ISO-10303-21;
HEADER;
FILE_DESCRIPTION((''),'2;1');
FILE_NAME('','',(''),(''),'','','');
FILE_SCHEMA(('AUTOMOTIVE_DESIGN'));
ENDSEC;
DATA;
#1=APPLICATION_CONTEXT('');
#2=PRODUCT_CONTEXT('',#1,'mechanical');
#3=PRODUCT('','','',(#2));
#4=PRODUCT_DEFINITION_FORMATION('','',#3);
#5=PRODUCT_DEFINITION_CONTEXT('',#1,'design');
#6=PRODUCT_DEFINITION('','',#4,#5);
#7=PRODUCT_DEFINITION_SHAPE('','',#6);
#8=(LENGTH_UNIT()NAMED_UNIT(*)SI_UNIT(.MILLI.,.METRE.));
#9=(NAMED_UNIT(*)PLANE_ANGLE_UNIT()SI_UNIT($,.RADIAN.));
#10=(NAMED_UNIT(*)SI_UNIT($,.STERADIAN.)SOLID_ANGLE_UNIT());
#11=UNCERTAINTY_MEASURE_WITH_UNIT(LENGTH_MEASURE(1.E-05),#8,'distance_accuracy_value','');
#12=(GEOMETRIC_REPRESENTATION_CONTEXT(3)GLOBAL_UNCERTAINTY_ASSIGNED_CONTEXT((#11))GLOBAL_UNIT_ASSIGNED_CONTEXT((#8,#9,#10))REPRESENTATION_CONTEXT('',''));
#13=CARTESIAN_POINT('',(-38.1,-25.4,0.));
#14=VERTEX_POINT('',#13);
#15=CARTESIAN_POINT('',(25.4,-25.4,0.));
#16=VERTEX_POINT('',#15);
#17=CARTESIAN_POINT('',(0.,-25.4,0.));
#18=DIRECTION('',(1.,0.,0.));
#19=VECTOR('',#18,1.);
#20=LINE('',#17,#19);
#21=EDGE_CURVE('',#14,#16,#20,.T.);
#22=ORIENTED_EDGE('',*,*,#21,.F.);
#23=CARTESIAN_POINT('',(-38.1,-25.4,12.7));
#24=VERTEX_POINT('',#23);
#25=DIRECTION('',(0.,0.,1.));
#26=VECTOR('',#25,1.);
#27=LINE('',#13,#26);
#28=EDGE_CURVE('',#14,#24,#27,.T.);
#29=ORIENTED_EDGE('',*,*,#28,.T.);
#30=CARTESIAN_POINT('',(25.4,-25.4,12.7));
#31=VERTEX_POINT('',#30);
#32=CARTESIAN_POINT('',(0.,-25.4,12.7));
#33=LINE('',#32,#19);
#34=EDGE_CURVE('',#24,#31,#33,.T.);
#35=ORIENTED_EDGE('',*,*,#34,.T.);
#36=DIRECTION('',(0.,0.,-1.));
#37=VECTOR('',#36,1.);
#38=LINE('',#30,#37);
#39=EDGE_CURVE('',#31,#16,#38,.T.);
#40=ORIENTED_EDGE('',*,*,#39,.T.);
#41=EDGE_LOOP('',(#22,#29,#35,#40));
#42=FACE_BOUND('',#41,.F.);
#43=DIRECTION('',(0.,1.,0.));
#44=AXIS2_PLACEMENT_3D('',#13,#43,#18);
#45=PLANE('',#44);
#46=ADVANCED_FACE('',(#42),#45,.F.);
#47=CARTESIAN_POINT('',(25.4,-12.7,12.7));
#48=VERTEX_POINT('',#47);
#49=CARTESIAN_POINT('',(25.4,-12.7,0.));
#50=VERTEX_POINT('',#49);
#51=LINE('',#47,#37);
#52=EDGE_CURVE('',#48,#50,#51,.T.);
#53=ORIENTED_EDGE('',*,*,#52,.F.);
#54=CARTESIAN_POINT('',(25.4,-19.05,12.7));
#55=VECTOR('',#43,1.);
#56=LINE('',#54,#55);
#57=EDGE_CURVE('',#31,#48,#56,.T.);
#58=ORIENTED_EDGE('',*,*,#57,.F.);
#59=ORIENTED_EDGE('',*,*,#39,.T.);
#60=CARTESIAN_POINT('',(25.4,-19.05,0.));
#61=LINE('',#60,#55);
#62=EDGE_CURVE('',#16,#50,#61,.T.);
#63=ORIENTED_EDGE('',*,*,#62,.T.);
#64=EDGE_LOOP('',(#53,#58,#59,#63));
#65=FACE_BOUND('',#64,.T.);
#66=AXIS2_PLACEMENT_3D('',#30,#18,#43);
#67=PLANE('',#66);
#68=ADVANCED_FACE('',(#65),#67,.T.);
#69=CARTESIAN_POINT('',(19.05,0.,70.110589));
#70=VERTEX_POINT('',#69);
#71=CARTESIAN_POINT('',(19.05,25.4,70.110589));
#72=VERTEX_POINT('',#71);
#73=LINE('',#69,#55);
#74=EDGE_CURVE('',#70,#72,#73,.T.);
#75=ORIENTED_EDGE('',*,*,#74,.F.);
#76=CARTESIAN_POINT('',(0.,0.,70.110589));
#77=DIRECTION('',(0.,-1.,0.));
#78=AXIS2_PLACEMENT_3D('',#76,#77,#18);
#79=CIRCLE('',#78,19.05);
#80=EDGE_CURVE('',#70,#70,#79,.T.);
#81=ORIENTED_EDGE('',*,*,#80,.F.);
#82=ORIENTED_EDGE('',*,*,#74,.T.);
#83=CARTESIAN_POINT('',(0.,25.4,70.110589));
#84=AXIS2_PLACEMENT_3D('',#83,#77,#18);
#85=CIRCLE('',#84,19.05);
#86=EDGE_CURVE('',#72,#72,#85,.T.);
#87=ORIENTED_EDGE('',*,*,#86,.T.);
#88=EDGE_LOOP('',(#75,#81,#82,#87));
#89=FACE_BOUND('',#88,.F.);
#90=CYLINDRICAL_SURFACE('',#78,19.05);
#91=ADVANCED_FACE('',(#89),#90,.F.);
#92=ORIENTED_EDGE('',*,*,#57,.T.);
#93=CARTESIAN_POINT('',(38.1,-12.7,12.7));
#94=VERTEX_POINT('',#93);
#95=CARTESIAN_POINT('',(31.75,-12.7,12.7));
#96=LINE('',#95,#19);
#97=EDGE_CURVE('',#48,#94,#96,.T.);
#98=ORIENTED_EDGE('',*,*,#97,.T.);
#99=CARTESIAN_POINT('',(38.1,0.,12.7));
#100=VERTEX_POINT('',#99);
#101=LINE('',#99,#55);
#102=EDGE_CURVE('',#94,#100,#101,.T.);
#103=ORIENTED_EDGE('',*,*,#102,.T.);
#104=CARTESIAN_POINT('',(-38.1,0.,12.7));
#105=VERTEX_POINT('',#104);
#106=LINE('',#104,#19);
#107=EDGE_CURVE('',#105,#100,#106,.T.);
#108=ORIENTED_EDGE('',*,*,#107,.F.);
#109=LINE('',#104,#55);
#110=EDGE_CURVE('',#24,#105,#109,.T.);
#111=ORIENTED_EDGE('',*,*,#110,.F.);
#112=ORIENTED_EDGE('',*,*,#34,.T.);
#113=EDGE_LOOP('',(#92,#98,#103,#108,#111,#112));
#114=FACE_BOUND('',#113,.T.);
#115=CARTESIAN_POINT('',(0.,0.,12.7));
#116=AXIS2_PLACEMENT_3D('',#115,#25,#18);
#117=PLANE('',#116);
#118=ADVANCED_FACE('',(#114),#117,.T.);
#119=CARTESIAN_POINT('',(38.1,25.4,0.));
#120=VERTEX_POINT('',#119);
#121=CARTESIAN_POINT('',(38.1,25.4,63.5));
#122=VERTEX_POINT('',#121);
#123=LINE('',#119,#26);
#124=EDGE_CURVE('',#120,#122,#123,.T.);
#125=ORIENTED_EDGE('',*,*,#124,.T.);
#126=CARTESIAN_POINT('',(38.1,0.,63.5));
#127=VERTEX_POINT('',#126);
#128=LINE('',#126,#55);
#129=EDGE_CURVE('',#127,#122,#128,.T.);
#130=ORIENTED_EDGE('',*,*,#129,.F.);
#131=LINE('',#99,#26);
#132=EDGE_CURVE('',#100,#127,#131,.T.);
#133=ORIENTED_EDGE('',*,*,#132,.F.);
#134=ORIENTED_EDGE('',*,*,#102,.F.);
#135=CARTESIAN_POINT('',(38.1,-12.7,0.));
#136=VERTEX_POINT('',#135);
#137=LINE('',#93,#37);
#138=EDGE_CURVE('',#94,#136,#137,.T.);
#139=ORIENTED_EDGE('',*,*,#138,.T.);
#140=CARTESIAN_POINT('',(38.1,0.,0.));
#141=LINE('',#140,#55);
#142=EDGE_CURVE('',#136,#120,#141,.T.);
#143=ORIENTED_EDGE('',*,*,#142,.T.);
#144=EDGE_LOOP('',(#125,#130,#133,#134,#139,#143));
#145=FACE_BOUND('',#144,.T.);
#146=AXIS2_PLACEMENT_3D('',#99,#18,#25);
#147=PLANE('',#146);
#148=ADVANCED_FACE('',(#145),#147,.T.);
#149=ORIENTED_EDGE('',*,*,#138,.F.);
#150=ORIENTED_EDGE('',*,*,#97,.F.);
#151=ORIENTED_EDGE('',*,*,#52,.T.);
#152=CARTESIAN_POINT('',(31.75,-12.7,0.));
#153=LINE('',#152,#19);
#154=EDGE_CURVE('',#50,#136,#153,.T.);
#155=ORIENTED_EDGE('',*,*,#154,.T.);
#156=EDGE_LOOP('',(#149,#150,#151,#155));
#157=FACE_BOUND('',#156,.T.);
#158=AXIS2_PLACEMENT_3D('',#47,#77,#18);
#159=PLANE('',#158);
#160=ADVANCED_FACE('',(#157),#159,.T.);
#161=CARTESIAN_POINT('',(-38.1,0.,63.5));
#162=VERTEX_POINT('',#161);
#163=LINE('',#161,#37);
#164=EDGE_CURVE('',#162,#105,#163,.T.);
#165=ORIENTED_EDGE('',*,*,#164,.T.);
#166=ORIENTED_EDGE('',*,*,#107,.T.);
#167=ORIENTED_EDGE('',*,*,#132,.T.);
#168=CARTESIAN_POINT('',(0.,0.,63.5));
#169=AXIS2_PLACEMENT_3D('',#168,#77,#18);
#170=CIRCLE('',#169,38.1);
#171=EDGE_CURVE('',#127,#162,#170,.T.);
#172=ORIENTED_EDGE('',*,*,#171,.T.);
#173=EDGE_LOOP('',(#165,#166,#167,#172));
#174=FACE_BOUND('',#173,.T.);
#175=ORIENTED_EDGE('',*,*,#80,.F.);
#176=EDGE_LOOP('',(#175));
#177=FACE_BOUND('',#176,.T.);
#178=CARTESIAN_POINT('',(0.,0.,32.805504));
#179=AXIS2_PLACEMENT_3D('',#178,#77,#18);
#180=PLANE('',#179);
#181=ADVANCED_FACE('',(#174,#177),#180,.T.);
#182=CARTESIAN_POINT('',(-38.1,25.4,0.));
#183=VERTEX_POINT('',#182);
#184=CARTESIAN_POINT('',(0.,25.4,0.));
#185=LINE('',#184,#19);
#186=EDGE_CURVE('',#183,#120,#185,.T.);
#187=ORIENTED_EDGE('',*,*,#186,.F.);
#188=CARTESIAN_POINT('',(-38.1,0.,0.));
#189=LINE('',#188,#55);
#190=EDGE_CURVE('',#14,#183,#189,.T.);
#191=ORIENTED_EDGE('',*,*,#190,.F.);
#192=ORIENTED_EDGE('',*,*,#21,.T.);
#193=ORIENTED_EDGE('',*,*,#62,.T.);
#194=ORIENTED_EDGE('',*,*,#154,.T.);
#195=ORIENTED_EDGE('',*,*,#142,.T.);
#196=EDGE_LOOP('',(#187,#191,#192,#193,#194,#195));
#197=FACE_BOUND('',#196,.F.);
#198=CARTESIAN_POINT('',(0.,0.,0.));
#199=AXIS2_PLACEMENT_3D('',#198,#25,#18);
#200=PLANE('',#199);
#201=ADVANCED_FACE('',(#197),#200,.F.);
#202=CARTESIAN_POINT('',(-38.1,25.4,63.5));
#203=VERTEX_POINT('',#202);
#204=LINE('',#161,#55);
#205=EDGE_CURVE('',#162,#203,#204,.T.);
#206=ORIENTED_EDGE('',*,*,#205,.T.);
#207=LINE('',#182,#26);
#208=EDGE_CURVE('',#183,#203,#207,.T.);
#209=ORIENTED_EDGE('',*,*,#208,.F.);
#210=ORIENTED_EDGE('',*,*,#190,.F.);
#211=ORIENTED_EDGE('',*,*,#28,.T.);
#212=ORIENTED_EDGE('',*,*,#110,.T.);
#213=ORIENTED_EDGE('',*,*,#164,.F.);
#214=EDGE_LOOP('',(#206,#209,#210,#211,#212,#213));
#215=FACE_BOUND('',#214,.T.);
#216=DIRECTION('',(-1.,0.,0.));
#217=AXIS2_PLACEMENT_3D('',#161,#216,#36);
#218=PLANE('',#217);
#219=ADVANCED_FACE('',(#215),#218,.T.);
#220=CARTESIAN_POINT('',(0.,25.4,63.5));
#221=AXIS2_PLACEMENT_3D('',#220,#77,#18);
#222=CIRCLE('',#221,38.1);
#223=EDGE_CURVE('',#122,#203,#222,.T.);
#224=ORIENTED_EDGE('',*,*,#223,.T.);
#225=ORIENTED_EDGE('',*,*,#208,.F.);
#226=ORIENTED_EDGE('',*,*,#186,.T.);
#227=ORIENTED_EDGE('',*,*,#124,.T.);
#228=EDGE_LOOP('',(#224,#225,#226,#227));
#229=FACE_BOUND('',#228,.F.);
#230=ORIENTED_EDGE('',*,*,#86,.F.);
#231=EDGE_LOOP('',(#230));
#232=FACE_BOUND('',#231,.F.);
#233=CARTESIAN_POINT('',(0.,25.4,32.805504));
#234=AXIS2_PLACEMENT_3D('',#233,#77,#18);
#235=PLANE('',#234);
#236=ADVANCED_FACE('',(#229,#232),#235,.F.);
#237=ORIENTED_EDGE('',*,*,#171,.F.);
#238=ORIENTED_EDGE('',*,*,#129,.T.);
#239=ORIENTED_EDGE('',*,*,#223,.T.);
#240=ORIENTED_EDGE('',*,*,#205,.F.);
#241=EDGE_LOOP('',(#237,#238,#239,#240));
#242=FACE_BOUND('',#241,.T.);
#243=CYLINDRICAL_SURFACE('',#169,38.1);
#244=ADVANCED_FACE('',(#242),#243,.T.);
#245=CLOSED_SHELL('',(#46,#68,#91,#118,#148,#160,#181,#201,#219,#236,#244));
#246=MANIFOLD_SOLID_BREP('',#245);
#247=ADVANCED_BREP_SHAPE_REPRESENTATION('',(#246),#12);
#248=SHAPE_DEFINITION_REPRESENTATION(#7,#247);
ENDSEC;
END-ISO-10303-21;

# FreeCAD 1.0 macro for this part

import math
import FreeCAD as App
import Part
import Sketcher
Q = App.Units.Quantity


def add_polygon(sketch, points):
    """Adds a closed chain of lines whose ends are joined by coincident constraints."""
    first, n = sketch.GeometryCount, len(points)
    for a, b in zip(points, points[1:] + points[:1]):
        sketch.addGeometry(Part.LineSegment(App.Vector(*a, 0), App.Vector(*b, 0)), False)
    for i in range(n):
        sketch.addConstraint(Sketcher.Constraint("Coincident", first + i, 2, first + (i + 1) % n, 1))

doc = App.newDocument("Part")
body = doc.addObject("PartDesign::Body", "Body")

# Sketch on XY plane
sketch1 = body.newObject("Sketcher::SketchObject", "Sketch")
sketch1.AttachmentSupport = (doc.getObject("XY_Plane"), [""])
sketch1.MapMode = "FlatFace"
add_polygon(sketch1, [(-38, 25), (-38, -25), (38, -25), (38, 25)])  # lines 0-3
sketch1.addConstraint(Sketcher.Constraint("Vertical", 0))
sketch1.addConstraint(Sketcher.Constraint("Horizontal", 1))
sketch1.addConstraint(Sketcher.Constraint("Vertical", 2))
sketch1.addConstraint(Sketcher.Constraint("Horizontal", 3))
sketch1.addConstraint(Sketcher.Constraint("Symmetric", 0, 2, 2, 2, -1, 1))
sketch1.addConstraint(Sketcher.Constraint("DistanceX", 1, 1, 1, 2, Q("3 in")))
sketch1.addConstraint(Sketcher.Constraint("DistanceY", 0, 2, 0, 1, Q("2 in")))
pad1 = body.newObject("PartDesign::Pad", "Pad")
pad1.Profile = sketch1
pad1.Length = Q("0.5 in")

# Sketch on XY plane
sketch2 = body.newObject("Sketcher::SketchObject", "Sketch001")
sketch2.AttachmentSupport = (doc.getObject("XY_Plane"), [""])
sketch2.MapMode = "FlatFace"
sketch2.AttachmentOffset = App.Placement(App.Vector(0, 0, 0.5 * 25.4), App.Rotation())
add_polygon(sketch2, [(25, -13), (25, -25), (38, -25), (38, -13)])  # lines 0-3
sketch2.addConstraint(Sketcher.Constraint("Vertical", 0))
sketch2.addConstraint(Sketcher.Constraint("Horizontal", 1))
sketch2.addConstraint(Sketcher.Constraint("Vertical", 2))
sketch2.addConstraint(Sketcher.Constraint("Horizontal", 3))
sketch2.addConstraint(Sketcher.Constraint("Equal", 3, 0))
sketch2.addConstraint(Sketcher.Constraint("DistanceX", 1, 1, 1, 2, Q("0.5 in")))
sketch2.addConstraint(Sketcher.Constraint("DistanceX", -1, 1, 0, 2, Q("1 in")))
sketch2.addConstraint(Sketcher.Constraint("DistanceY", 0, 2, -1, 1, Q("1 in")))
pocket1 = body.newObject("PartDesign::Pocket", "Pocket")
pocket1.Profile = sketch2
pocket1.Length = Q("0.5 in")

# Sketch on XZ plane
sketch3 = body.newObject("Sketcher::SketchObject", "Sketch002")
sketch3.AttachmentSupport = (doc.getObject("XZ_Plane"), [""])
sketch3.MapMode = "FlatFace"
sketch3.addGeometry(Part.LineSegment(App.Vector(-38, 13, 0), App.Vector(38, 13, 0)), False)
sketch3.addGeometry(Part.LineSegment(App.Vector(38, 13, 0), App.Vector(38, 64, 0)), False)
sketch3.addGeometry(Part.ArcOfCircle(Part.Circle(App.Vector(0, 64, 0), App.Vector(0, 0, 1), 38), math.radians(0), math.radians(180)), False)
sketch3.addGeometry(Part.LineSegment(App.Vector(-38, 64, 0), App.Vector(-38, 13, 0)), False)
sketch3.addConstraint(Sketcher.Constraint("Coincident", 0, 2, 1, 1))
sketch3.addConstraint(Sketcher.Constraint("Tangent", 1, 2, 2, 1))
sketch3.addConstraint(Sketcher.Constraint("Tangent", 2, 2, 3, 1))
sketch3.addConstraint(Sketcher.Constraint("Coincident", 3, 2, 0, 1))
sketch3.addConstraint(Sketcher.Constraint("Horizontal", 0))
sketch3.addConstraint(Sketcher.Constraint("Vertical", 1))
sketch3.addConstraint(Sketcher.Constraint("Vertical", 3))
sketch3.addConstraint(Sketcher.Constraint("PointOnObject", 2, 3, -2))
sketch3.addConstraint(Sketcher.Constraint("Radius", 2, Q("1.5 in")))
sketch3.addConstraint(Sketcher.Constraint("DistanceY", 1, 1, 1, 2, Q("2 in")))
sketch3.addConstraint(Sketcher.Constraint("DistanceY", -1, 1, 2, 3, Q("2.5 in")))
pad2 = body.newObject("PartDesign::Pad", "Pad001")
pad2.Profile = sketch3
pad2.Length = Q("1 in")
pad2.Reversed = True

# Sketch on XZ plane
sketch4 = body.newObject("Sketcher::SketchObject", "Sketch003")
sketch4.AttachmentSupport = (doc.getObject("XZ_Plane"), [""])
sketch4.MapMode = "FlatFace"
sketch4.addGeometry(Part.Circle(App.Vector(0, 70, 0), App.Vector(0, 0, 1), 19), False)
sketch4.addConstraint(Sketcher.Constraint("PointOnObject", 0, 3, -2))
sketch4.addConstraint(Sketcher.Constraint("Diameter", 0, Q("1.5 in")))
sketch4.addConstraint(Sketcher.Constraint("DistanceY", -1, 1, 0, 3, Q("70.110589 mm")))
pocket2 = body.newObject("PartDesign::Pocket", "Pocket001")
pocket2.Profile = sketch4
pocket2.Length = Q("1 in")

doc.recompute()
